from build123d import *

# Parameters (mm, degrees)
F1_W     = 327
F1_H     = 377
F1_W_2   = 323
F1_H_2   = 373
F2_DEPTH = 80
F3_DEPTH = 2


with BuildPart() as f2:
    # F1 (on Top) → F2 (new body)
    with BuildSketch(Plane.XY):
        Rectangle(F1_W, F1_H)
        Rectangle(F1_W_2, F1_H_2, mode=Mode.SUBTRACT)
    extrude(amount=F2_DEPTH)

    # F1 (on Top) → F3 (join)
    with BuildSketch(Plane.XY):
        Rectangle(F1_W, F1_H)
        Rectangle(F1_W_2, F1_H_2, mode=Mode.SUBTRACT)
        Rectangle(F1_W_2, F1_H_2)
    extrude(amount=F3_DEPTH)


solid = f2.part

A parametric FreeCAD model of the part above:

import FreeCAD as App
import Part
import Sketcher
from FreeCAD import Vector
Q = App.Units.Quantity


def add_polygon(sketch, points):
    """Adds a closed chain of lines whose ends are joined by coincident constraints."""
    first, n = sketch.GeometryCount, len(points)
    for a, b in zip(points, points[1:] + points[:1]):
        sketch.addGeometry(Part.LineSegment(App.Vector(*a, 0), App.Vector(*b, 0)), False)
    for i in range(n):
        sketch.addConstraint(Sketcher.Constraint("Coincident", first + i, 2, first + (i + 1) % n, 1))

doc = App.newDocument("Part")
body = doc.addObject("PartDesign::Body", "Body")

# Sketch on XY plane
sketch1 = doc.addObject("Sketcher::SketchObject", "Sketch")
body.addObject(sketch1)
sketch1.AttachmentSupport = (doc.XY_Plane, [""])
sketch1.MapMode = "FlatFace"
add_polygon(sketch1, [(-164, 188), (-164, -188), (164, -188), (164, 188)])  # lines 0-3
add_polygon(sketch1, [(162, -186), (-162, -186), (-162, 186), (162, 186)])  # lines 4-7
sketch1.addConstraint(Sketcher.Constraint("Vertical", 0))
sketch1.addConstraint(Sketcher.Constraint("Horizontal", 1))
sketch1.addConstraint(Sketcher.Constraint("Vertical", 2))
sketch1.addConstraint(Sketcher.Constraint("Horizontal", 3))
sketch1.addConstraint(Sketcher.Constraint("Horizontal", 4))
sketch1.addConstraint(Sketcher.Constraint("Vertical", 5))
sketch1.addConstraint(Sketcher.Constraint("Horizontal", 6))
sketch1.addConstraint(Sketcher.Constraint("Vertical", 7))
sketch1.addConstraint(Sketcher.Constraint("Symmetric", 0, 2, 2, 2, -1, 1))
sketch1.addConstraint(Sketcher.Constraint("Symmetric", 4, 2, 6, 2, -1, 1))
sketch1.addConstraint(Sketcher.Constraint("DistanceX", 1, 1, 1, 2, Q("327 mm")))
sketch1.addConstraint(Sketcher.Constraint("DistanceX", 4, 2, 4, 1, Q("323 mm")))
sketch1.addConstraint(Sketcher.Constraint("DistanceY", 0, 2, 0, 1, Q("377 mm")))
sketch1.addConstraint(Sketcher.Constraint("DistanceY", 5, 1, 5, 2, Q("373 mm")))
pad1 = doc.addObject("PartDesign::Pad", "Pad")
body.addObject(pad1)
pad1.Profile = sketch1
pad1.Length = 80

# Sketch on XY plane
sketch2 = doc.addObject("Sketcher::SketchObject", "Sketch001")
body.addObject(sketch2)
sketch2.AttachmentSupport = (doc.XY_Plane, [""])
sketch2.MapMode = "FlatFace"
add_polygon(sketch2, [(-164, 188), (-164, -188), (164, -188), (164, 188)])  # lines 0-3
sketch2.addConstraint(Sketcher.Constraint("Vertical", 0))
sketch2.addConstraint(Sketcher.Constraint("Horizontal", 1))
sketch2.addConstraint(Sketcher.Constraint("Vertical", 2))
sketch2.addConstraint(Sketcher.Constraint("Horizontal", 3))
sketch2.addConstraint(Sketcher.Constraint("Symmetric", 0, 2, 2, 2, -1, 1))
sketch2.addConstraint(Sketcher.Constraint("DistanceX", 1, 1, 1, 2, Q("327 mm")))
sketch2.addConstraint(Sketcher.Constraint("DistanceY", 0, 2, 0, 1, Q("377 mm")))
pad2 = doc.addObject("PartDesign::Pad", "Pad001")
body.addObject(pad2)
pad2.Profile = sketch2
pad2.Length = 2

doc.recompute()
